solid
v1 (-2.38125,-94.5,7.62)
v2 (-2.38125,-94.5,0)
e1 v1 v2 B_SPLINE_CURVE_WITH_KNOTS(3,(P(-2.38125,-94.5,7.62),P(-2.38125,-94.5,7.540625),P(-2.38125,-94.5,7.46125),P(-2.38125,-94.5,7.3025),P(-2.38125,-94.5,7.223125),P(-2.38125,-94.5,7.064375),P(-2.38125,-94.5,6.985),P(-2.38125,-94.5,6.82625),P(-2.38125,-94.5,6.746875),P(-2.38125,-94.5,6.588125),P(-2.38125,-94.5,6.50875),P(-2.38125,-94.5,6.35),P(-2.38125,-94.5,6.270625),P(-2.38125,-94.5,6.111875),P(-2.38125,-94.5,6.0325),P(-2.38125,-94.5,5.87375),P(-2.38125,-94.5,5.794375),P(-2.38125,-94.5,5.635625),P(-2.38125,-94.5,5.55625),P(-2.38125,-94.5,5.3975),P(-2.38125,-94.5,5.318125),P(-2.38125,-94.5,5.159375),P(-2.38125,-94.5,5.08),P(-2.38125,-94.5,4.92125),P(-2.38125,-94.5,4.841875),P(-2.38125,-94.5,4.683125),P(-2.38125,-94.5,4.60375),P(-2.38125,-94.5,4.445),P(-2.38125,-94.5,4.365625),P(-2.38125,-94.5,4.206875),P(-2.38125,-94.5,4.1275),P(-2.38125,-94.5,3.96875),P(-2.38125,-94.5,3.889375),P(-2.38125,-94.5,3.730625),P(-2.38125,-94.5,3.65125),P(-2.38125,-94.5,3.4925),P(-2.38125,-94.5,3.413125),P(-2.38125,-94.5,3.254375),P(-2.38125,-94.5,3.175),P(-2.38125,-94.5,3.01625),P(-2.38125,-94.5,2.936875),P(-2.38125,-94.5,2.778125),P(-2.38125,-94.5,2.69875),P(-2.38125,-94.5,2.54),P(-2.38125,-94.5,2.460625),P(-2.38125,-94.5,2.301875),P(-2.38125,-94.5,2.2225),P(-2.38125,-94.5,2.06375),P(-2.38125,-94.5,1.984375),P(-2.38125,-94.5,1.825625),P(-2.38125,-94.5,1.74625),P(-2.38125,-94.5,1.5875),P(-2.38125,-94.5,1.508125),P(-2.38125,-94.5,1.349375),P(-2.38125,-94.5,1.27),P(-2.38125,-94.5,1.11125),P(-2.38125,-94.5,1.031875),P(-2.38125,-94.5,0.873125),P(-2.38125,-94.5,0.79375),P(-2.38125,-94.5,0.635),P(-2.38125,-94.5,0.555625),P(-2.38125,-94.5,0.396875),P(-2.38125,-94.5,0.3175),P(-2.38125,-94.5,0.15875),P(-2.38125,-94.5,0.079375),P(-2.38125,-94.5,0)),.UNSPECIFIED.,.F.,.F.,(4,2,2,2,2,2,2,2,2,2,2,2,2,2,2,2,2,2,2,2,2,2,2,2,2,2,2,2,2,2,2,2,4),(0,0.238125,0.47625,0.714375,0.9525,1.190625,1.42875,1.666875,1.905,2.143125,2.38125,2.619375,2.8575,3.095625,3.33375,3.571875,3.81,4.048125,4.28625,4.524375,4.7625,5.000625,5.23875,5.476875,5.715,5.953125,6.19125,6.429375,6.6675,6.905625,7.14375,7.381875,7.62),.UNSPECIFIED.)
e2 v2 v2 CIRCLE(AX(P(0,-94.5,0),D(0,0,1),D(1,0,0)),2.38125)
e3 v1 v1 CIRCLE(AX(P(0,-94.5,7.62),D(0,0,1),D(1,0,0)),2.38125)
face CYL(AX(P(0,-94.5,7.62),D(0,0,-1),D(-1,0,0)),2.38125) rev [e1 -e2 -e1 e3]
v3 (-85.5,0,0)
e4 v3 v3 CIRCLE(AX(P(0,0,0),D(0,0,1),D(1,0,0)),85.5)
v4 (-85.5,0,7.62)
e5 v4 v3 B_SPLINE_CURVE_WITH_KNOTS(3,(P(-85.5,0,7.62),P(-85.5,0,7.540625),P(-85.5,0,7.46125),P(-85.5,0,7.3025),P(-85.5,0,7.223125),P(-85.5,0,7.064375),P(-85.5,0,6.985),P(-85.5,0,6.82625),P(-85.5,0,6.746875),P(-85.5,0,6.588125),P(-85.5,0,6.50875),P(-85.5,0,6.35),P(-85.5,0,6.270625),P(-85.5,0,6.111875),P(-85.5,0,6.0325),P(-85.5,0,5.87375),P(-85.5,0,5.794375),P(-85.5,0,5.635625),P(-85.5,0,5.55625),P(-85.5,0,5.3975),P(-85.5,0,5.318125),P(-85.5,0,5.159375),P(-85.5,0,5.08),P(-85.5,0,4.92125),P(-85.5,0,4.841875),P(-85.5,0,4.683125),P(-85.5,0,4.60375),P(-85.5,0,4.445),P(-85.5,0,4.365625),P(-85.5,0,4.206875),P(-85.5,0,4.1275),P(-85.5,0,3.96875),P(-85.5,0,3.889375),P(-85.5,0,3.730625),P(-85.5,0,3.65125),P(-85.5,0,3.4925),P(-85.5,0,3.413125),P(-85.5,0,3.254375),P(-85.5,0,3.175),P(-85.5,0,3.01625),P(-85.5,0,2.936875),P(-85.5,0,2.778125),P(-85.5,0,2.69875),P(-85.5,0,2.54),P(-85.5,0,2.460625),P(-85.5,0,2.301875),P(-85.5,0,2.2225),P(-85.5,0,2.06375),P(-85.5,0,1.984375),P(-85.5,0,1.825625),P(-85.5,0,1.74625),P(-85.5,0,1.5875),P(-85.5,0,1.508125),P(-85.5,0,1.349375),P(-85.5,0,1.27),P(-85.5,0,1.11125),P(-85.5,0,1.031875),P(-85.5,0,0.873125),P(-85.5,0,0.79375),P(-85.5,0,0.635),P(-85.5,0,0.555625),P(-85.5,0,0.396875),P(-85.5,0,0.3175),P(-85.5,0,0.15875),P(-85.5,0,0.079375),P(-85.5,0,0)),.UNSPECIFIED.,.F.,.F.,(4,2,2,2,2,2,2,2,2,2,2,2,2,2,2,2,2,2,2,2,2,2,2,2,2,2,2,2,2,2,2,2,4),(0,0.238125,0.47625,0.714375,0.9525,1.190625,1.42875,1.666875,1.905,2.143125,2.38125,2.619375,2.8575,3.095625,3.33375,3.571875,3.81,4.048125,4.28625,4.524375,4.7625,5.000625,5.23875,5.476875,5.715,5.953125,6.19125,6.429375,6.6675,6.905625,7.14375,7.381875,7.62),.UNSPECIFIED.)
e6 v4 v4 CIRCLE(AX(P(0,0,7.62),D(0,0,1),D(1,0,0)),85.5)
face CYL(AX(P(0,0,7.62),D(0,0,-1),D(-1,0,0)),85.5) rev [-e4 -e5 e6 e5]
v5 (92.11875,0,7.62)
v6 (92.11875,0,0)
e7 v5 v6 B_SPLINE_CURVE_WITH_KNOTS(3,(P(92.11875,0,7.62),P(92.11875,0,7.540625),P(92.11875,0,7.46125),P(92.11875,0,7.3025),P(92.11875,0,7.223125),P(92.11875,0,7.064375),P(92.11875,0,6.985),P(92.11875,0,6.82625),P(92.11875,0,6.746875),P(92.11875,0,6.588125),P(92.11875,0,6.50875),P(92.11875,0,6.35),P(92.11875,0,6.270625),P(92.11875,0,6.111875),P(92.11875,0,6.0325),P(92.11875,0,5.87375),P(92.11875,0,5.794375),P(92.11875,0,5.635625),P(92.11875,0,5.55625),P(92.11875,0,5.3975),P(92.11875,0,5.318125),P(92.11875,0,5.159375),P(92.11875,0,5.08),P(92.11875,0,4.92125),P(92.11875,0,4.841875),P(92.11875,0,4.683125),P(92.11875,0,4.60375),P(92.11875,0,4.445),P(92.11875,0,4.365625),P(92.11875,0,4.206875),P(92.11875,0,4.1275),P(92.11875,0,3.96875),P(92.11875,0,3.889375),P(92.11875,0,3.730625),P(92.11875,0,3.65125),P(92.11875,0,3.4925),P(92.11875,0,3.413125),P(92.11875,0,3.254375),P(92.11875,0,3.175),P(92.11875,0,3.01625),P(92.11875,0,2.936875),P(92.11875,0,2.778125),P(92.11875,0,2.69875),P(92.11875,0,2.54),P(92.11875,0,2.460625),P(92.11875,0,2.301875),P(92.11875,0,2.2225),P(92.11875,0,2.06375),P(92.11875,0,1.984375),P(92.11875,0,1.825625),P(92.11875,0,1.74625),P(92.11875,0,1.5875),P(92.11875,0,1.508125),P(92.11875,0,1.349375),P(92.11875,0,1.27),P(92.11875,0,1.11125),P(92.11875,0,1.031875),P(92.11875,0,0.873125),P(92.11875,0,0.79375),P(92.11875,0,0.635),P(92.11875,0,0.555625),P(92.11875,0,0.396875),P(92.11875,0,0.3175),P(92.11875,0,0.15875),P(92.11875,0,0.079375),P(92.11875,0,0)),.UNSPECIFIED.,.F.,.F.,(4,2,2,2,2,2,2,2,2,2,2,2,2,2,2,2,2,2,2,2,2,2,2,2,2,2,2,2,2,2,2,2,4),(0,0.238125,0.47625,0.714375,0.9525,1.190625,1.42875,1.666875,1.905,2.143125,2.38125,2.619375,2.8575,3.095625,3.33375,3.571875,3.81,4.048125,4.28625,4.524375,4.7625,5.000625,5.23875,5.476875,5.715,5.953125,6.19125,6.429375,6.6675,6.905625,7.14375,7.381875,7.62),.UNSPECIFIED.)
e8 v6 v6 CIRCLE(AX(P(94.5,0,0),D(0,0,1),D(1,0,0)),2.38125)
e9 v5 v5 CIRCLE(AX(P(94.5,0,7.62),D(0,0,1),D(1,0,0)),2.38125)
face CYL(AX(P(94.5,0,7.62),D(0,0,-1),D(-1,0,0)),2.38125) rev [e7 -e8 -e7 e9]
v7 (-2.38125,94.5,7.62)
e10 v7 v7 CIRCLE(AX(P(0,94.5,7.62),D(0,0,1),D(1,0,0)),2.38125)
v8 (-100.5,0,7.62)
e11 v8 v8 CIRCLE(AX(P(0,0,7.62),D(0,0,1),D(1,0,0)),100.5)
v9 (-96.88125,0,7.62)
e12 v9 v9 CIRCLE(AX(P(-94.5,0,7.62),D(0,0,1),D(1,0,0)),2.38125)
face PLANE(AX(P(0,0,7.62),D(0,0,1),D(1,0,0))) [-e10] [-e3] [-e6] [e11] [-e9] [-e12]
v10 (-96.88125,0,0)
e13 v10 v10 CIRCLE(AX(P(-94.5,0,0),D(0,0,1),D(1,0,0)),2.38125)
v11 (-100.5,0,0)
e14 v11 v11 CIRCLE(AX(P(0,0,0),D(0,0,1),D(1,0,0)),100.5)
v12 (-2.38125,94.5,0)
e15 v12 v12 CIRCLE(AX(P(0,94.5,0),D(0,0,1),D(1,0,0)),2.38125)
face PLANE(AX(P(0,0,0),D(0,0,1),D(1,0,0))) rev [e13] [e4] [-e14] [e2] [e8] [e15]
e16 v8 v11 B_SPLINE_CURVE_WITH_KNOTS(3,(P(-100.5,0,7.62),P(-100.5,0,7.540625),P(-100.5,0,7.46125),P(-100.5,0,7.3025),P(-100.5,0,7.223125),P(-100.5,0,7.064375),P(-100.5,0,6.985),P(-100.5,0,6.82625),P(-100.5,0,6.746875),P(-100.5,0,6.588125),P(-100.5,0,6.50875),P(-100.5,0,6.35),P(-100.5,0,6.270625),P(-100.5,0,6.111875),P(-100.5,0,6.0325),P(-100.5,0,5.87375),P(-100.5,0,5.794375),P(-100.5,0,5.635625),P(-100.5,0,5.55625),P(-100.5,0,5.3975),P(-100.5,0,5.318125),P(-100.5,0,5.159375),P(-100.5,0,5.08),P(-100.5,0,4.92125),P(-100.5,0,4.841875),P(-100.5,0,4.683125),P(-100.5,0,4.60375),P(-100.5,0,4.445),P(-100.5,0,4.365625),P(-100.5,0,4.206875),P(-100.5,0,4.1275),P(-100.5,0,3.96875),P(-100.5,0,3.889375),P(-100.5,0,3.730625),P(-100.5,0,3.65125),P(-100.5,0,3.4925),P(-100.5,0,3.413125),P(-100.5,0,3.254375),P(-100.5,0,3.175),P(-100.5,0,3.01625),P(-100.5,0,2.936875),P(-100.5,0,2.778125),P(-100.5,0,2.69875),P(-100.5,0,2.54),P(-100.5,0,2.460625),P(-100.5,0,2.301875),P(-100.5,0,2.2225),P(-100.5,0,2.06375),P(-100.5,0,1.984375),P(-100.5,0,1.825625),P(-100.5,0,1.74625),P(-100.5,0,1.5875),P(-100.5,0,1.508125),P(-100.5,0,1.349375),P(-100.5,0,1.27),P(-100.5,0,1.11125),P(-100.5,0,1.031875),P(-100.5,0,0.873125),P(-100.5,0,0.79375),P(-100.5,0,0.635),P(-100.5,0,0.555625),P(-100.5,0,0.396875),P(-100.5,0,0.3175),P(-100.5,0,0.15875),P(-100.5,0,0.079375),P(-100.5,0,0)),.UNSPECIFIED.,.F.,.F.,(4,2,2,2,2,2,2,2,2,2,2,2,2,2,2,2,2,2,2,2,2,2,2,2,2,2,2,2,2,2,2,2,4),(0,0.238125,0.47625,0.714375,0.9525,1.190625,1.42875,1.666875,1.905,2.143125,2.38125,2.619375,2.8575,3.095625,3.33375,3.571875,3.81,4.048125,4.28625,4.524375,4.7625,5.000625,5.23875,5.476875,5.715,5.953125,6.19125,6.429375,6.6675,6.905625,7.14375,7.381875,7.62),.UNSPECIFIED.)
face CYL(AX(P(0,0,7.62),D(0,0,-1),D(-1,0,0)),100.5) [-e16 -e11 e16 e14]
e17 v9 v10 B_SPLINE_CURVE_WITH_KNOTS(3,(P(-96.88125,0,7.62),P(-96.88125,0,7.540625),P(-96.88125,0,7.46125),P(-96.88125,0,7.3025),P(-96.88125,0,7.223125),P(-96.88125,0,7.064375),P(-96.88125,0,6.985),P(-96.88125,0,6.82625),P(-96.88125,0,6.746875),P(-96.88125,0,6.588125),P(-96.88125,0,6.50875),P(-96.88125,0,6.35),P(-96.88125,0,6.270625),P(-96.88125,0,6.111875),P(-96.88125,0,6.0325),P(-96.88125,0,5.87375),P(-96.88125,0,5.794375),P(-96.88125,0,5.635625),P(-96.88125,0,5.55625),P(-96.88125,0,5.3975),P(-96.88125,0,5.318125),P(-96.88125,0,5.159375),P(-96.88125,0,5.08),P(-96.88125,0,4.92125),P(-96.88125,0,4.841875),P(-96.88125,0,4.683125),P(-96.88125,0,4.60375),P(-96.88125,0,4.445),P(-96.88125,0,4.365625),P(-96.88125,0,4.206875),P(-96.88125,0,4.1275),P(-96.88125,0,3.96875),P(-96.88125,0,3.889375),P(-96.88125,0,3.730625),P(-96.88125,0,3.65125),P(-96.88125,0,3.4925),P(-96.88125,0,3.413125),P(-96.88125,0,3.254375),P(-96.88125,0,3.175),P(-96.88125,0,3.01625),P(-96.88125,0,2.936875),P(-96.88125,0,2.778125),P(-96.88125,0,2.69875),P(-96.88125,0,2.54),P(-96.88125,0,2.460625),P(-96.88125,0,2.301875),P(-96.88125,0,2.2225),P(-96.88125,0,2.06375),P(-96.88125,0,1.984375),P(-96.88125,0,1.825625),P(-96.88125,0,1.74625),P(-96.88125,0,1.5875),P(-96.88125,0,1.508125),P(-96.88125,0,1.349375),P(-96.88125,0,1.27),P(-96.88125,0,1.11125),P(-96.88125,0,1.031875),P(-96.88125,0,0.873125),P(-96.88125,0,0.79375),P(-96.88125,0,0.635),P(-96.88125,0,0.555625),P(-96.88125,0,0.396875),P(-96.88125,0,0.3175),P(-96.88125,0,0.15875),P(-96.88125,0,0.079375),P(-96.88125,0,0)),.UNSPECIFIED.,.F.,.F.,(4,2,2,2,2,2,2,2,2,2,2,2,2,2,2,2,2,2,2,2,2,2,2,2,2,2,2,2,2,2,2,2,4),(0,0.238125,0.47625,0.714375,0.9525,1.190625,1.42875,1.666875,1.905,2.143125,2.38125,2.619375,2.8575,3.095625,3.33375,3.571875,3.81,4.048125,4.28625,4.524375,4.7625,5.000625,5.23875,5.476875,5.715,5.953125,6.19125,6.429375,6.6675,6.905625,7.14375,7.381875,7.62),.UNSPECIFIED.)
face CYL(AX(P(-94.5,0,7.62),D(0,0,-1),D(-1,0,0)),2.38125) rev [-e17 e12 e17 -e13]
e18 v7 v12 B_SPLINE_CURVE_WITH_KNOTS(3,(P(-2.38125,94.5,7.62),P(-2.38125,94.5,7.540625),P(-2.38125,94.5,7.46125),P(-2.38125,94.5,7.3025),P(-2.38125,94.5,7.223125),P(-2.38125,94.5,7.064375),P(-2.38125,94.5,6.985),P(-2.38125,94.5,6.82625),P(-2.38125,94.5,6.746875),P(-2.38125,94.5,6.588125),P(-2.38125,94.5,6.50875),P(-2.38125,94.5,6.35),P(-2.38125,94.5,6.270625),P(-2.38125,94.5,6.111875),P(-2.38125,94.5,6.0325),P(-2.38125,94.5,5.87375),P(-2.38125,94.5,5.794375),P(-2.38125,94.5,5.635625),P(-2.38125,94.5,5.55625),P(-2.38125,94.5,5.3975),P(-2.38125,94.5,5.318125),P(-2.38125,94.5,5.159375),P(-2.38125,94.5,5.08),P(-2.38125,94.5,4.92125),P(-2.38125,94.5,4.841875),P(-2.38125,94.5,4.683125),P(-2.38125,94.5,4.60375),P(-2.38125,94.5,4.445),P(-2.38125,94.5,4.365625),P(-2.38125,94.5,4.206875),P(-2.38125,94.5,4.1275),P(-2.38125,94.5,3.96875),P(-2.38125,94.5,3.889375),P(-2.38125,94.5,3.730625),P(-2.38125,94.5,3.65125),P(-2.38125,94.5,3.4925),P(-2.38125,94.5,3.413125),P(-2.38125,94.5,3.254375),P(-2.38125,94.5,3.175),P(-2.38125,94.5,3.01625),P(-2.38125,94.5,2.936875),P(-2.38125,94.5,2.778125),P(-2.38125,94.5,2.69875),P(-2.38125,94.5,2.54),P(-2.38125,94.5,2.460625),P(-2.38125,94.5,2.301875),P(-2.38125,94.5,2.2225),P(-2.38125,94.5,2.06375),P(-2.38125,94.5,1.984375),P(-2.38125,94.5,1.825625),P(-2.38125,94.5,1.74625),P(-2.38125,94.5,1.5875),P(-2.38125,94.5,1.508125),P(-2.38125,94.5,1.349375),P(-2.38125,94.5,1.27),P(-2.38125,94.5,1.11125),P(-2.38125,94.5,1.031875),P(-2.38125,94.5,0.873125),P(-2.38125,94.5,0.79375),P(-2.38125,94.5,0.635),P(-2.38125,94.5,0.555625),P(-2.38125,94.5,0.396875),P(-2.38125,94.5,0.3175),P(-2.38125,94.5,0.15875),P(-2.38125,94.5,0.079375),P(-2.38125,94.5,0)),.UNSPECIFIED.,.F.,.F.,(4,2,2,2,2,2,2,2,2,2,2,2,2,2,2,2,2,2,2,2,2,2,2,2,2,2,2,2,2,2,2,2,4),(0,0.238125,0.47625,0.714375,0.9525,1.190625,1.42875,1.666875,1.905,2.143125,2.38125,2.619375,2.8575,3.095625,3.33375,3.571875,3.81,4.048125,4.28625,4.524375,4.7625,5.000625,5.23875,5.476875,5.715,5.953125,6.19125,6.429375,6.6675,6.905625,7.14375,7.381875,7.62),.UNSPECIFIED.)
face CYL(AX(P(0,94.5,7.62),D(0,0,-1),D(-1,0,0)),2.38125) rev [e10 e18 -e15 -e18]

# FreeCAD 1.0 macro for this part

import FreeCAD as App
import Part
import Sketcher
from FreeCAD import Vector
Q = App.Units.Quantity

doc = App.newDocument("Part")
body = doc.addObject("PartDesign::Body", "Body")

# Sketch on XY plane
sketch1 = body.newObject("Sketcher::SketchObject", "Sketch")
sketch1.AttachmentSupport = (doc.getObject("XY_Plane"), [""])
sketch1.MapMode = "FlatFace"
sketch1.addGeometry([
    Part.Circle(Vector(0, 0, 0), Vector(0, 0, 1), 100.5),  # 0
    Part.Circle(Vector(94.5, 0, 0), Vector(0, 0, 1), 2.4),  # 1
    Part.Circle(Vector(0, 94.5, 0), Vector(0, 0, 1), 2.4),  # 2
    Part.Circle(Vector(0, -94.5, 0), Vector(0, 0, 1), 2.4),  # 3
    Part.Circle(Vector(0, 0, 0), Vector(0, 0, 1), 85.5),  # 4
    Part.Circle(Vector(-94.5, 0, 0), Vector(0, 0, 1), 2.4),  # 5
], False)
sketch1.addConstraint([
    Sketcher.Constraint("Coincident", 0, 3, -1, 1),
    Sketcher.Constraint("Coincident", 4, 3, -1, 1),
    Sketcher.Constraint("Equal", 1, 2),
    Sketcher.Constraint("Equal", 2, 3),
    Sketcher.Constraint("Equal", 3, 5),
    Sketcher.Constraint("Symmetric", 2, 3, 3, 3, -1, 1),
    Sketcher.Constraint("Symmetric", 1, 3, 5, 3, -1, 1),
    Sketcher.Constraint("PointOnObject", 1, 3, -1),
    Sketcher.Constraint("PointOnObject", 2, 3, -2),
    Sketcher.Constraint("Diameter", 0, Q("201 mm")),
    Sketcher.Constraint("Diameter", 4, Q("171 mm")),
    Sketcher.Constraint("DistanceY", 3, 3, 2, 3, Q("189 mm")),
    Sketcher.Constraint("DistanceX", 5, 3, 1, 3, Q("189 mm")),
    Sketcher.Constraint("Diameter", 1, Q("4.7625 mm")),
])
pad1 = body.newObject("PartDesign::Pad", "Pad")
pad1.Profile = sketch1
pad1.Length = 7.62

doc.recompute()
